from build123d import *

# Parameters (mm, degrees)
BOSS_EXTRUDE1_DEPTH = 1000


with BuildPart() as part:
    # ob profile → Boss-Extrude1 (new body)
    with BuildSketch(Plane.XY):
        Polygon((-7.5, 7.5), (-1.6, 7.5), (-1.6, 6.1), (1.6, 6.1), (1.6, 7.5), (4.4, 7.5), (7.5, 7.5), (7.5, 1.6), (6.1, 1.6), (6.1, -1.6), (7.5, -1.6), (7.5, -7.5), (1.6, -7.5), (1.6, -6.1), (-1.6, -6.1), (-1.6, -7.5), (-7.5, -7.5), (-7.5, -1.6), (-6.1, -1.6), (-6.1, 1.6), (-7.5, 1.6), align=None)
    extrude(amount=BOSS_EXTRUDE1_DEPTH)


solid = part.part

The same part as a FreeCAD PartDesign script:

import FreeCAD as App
import Part
import Sketcher
from FreeCAD import Vector
Q = App.Units.Quantity


def add_polygon(sketch, points):
    """Adds a closed chain of lines whose ends are joined by coincident constraints."""
    first, n = sketch.GeometryCount, len(points)
    for a, b in zip(points, points[1:] + points[:1]):
        sketch.addGeometry(Part.LineSegment(App.Vector(*a, 0), App.Vector(*b, 0)), False)
    for i in range(n):
        sketch.addConstraint(Sketcher.Constraint("Coincident", first + i, 2, first + (i + 1) % n, 1))

doc = App.newDocument("Part")
body = doc.addObject("PartDesign::Body", "Body")

sketch1 = doc.addObject("Sketcher::SketchObject", "Sketch")
body.addObject(sketch1)
sketch1.AttachmentSupport = (doc.XY_Plane, [""])
sketch1.MapMode = "FlatFace"
add_polygon(sketch1, [(-1.6, 7.5), (-7.5, 7.5), (-7.5, 1.6), (-6.1, 1.6), (-6.1, -1.6), (-7.5, -1.6), (-7.5, -7.5), (-1.6, -7.5), (-1.6, -6.1), (1.6, -6.1), (1.6, -7.5), (7.5, -7.5), (7.5, -1.6), (6.1, -1.6), (6.1, 1.6), (7.5, 1.6), (7.5, 7.5), (1.6, 7.5), (1.6, 6.1), (-1.6, 6.1)])
sketch1.addConstraint(Sketcher.Constraint("Horizontal", 0))
sketch1.addConstraint(Sketcher.Constraint("Vertical", 1))
sketch1.addConstraint(Sketcher.Constraint("Horizontal", 2))
sketch1.addConstraint(Sketcher.Constraint("Vertical", 3))
sketch1.addConstraint(Sketcher.Constraint("Horizontal", 4))
sketch1.addConstraint(Sketcher.Constraint("Vertical", 5))
sketch1.addConstraint(Sketcher.Constraint("Horizontal", 6))
sketch1.addConstraint(Sketcher.Constraint("Vertical", 7))
sketch1.addConstraint(Sketcher.Constraint("Horizontal", 8))
sketch1.addConstraint(Sketcher.Constraint("Vertical", 9))
sketch1.addConstraint(Sketcher.Constraint("Horizontal", 10))
sketch1.addConstraint(Sketcher.Constraint("Vertical", 11))
sketch1.addConstraint(Sketcher.Constraint("Horizontal", 12))
sketch1.addConstraint(Sketcher.Constraint("Vertical", 13))
sketch1.addConstraint(Sketcher.Constraint("Horizontal", 14))
sketch1.addConstraint(Sketcher.Constraint("Vertical", 15))
sketch1.addConstraint(Sketcher.Constraint("Horizontal", 16))
sketch1.addConstraint(Sketcher.Constraint("Vertical", 17))
sketch1.addConstraint(Sketcher.Constraint("Horizontal", 18))
sketch1.addConstraint(Sketcher.Constraint("Vertical", 19))
sketch1.addConstraint(Sketcher.Constraint("Symmetric", 0, 2, 10, 2, -1, 1))
sketch1.addConstraint(Sketcher.Constraint("Symmetric", 2, 2, 12, 2, -1, 1))
sketch1.addConstraint(Sketcher.Constraint("Symmetric", 4, 2, 14, 2, -1, 1))
sketch1.addConstraint(Sketcher.Constraint("Symmetric", 6, 2, 16, 2, -1, 1))
sketch1.addConstraint(Sketcher.Constraint("Symmetric", 8, 2, 18, 2, -1, 1))
sketch1.addConstraint(Sketcher.Constraint("Symmetric", 6, 2, 9, 2, -2))
sketch1.addConstraint(Sketcher.Constraint("Symmetric", 4, 2, 11, 2, -2))
sketch1.addConstraint(Sketcher.Constraint("Equal", 16, 1))
sketch1.addConstraint(Sketcher.Constraint("Equal", 18, 3))
sketch1.addConstraint(Sketcher.Constraint("Equal", 14, 7))
sketch1.addConstraint(Sketcher.Constraint("DistanceX", 0, 2, 0, 1, Q("5.9 mm")))
sketch1.addConstraint(Sketcher.Constraint("DistanceX", 2, 1, 2, 2, Q("1.4 mm")))
sketch1.addConstraint(Sketcher.Constraint("DistanceX", 8, 1, 8, 2, Q("3.2 mm")))
pad1 = doc.addObject("PartDesign::Pad", "Pad")
body.addObject(pad1)
pad1.Profile = sketch1
pad1.Length = 1000

doc.recompute()
